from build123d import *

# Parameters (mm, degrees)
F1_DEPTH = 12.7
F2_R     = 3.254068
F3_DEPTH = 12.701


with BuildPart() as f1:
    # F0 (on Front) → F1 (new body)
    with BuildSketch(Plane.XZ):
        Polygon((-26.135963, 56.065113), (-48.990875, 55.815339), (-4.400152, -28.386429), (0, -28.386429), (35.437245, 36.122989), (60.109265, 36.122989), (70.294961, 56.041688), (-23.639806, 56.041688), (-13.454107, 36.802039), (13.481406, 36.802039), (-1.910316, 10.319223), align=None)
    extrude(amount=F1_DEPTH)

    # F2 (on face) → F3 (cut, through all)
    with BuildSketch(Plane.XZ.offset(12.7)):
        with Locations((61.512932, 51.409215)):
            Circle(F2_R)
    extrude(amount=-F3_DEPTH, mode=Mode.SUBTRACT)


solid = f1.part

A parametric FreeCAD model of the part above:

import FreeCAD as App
import Part
import Sketcher
from FreeCAD import Vector
Q = App.Units.Quantity


def add_polygon(sketch, points):
    """Adds a closed chain of lines whose ends are joined by coincident constraints."""
    first, n = sketch.GeometryCount, len(points)
    for a, b in zip(points, points[1:] + points[:1]):
        sketch.addGeometry(Part.LineSegment(App.Vector(*a, 0), App.Vector(*b, 0)), False)
    for i in range(n):
        sketch.addConstraint(Sketcher.Constraint("Coincident", first + i, 2, first + (i + 1) % n, 1))

doc = App.newDocument("Part")
body = doc.addObject("PartDesign::Body", "Body")

# Sketch on XZ plane
sketch1 = doc.addObject("Sketcher::SketchObject", "Sketch")
body.addObject(sketch1)
sketch1.AttachmentSupport = (doc.XZ_Plane, [""])
sketch1.MapMode = "FlatFace"
add_polygon(sketch1, [(-26.135963, 56.065113), (-48.990875, 55.815339), (-4.400152, -28.386429), (0, -28.386429), (35.437245, 36.122989), (60.109265, 36.122989), (70.294961, 56.041688), (-23.639806, 56.041688), (-13.454107, 36.802039), (13.481406, 36.802039), (-1.910316, 10.319223)])  # lines 0-10
sketch1.addConstraint([
    Sketcher.Constraint("Horizontal", 2),
    Sketcher.Constraint("Horizontal", 4),
    Sketcher.Constraint("Horizontal", 6),
    Sketcher.Constraint("Horizontal", 8),
    Sketcher.Constraint("PointOnObject", 2, 2, -2),
    Sketcher.Constraint("Parallel", 1, 10),
    Sketcher.Constraint("DistanceX", 4, 1, 4, 2, Q("24.67202 mm")),
    Sketcher.Constraint("DistanceY", 4, 2, 5, 2, Q("19.918699 mm")),
    Sketcher.Constraint("DistanceX", 6, 2, 7, 2, Q("10.185699 mm")),
    Sketcher.Constraint("DistanceY", 7, 2, 0, 2, Q("19.0133 mm")),
    Sketcher.Constraint("Distance", 3, Q("73.602061 mm")),
    Sketcher.Constraint("Distance", 9, Q("30.630779 mm")),
    Sketcher.Constraint("DistanceX", 2, 1, 2, 2, Q("4.400152 mm")),
    Sketcher.Constraint("DistanceX", 6, 2, 6, 1, Q("93.934767 mm")),
    Sketcher.Constraint("DistanceX", 8, 1, 8, 2, Q("26.935513 mm")),
    Sketcher.Constraint("DistanceY", -1, 1, 0, 2, Q("55.815339 mm")),
    Sketcher.Constraint("DistanceY", 1, 2, -1, 1, Q("28.386429 mm")),
    Sketcher.Constraint("DistanceY", -1, 1, 3, 2, Q("36.122989 mm")),
    Sketcher.Constraint("DistanceX", -1, 1, 5, 2, Q("70.294961 mm")),
    Sketcher.Constraint("DistanceX", 0, 2, 3, 2, Q("84.42812 mm")),
    Sketcher.Constraint("DistanceX", 7, 2, 9, 2, Q("11.543791 mm")),
    Sketcher.Constraint("DistanceX", 10, 2, 8, 2, Q("39.617369 mm")),
])
pad1 = doc.addObject("PartDesign::Pad", "Pad")
body.addObject(pad1)
pad1.Profile = sketch1
pad1.Length = Q("0.5 in")

# Sketch on XZ plane
sketch2 = doc.addObject("Sketcher::SketchObject", "Sketch001")
body.addObject(sketch2)
sketch2.AttachmentSupport = (doc.XZ_Plane, [""])
sketch2.MapMode = "FlatFace"
sketch2.AttachmentOffset = App.Placement(Vector(0, 0, 0.5 * 25.4), App.Rotation())
sketch2.addGeometry(Part.Circle(Vector(61.512932, 51.409215, 0), Vector(0, 0, 1), 3.254068), False)
sketch2.addConstraint([
    Sketcher.Constraint("Diameter", 0, Q("6.508136 mm")),
    Sketcher.Constraint("DistanceX", -1, 1, 0, 3, Q("61.512932 mm")),
    Sketcher.Constraint("DistanceY", -1, 1, 0, 3, Q("51.409215 mm")),
])
pocket1 = doc.addObject("PartDesign::Pocket", "Pocket")
body.addObject(pocket1)
pocket1.Profile = sketch2
pocket1.Type = "ThroughAll"

doc.recompute()
